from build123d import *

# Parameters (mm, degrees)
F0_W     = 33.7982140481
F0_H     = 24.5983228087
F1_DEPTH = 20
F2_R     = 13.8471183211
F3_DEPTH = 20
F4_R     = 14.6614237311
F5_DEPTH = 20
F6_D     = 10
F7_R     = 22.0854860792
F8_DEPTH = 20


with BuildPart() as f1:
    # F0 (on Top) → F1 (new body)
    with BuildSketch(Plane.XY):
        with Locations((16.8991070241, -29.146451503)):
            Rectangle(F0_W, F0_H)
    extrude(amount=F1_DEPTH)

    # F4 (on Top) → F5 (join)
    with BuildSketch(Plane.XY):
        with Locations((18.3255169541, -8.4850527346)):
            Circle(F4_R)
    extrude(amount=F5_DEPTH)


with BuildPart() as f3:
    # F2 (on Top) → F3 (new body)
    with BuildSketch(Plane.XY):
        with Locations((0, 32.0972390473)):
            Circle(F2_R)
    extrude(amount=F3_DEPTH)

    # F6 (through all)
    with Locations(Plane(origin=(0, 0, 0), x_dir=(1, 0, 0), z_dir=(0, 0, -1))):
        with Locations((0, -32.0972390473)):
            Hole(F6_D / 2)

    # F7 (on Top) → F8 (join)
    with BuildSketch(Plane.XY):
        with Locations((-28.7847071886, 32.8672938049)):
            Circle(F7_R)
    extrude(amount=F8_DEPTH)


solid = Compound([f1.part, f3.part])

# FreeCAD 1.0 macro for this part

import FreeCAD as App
import Part
import Sketcher

doc = App.newDocument("Part")
body = doc.addObject("PartDesign::Body", "Body")

# Sketch on XY plane
sketch1 = body.newObject("Sketcher::SketchObject", "Sketch")
sketch1.AttachmentSupport = (doc.getObject("XY_Plane"), [""])
sketch1.MapMode = "FlatFace"
sketch1.addGeometry([
    Part.LineSegment(App.Vector(0, -17, 0), App.Vector(0, -41, 0)),
    Part.LineSegment(App.Vector(0, -41, 0), App.Vector(34, -41, 0)),
    Part.LineSegment(App.Vector(34, -41, 0), App.Vector(34, -17, 0)),
    Part.LineSegment(App.Vector(34, -17, 0), App.Vector(0, -17, 0)),
], False)
sketch1.addConstraint([
    Sketcher.Constraint("Coincident", 0, 2, 1, 1),
    Sketcher.Constraint("Coincident", 1, 2, 2, 1),
    Sketcher.Constraint("Coincident", 2, 2, 3, 1),
    Sketcher.Constraint("Coincident", 3, 2, 0, 1),
    Sketcher.Constraint("Vertical", 0),
    Sketcher.Constraint("Horizontal", 1),
    Sketcher.Constraint("Vertical", 2),
    Sketcher.Constraint("Horizontal", 3),
    Sketcher.Constraint("PointOnObject", 0, 2, -2),
    Sketcher.Constraint("DistanceX", 1, 1, 1, 2, 33.798214),
    Sketcher.Constraint("DistanceY", 0, 2, 0, 1, 24.598323),
    Sketcher.Constraint("DistanceY", 2, 2, -1, 1, 16.84729),
])
pad1 = body.newObject("PartDesign::Pad", "Pad")
pad1.Profile = sketch1
pad1.Length = 20

# Sketch on XY plane
sketch2 = body.newObject("Sketcher::SketchObject", "Sketch001")
sketch2.AttachmentSupport = (doc.getObject("XY_Plane"), [""])
sketch2.MapMode = "FlatFace"
sketch2.addGeometry(Part.Circle(App.Vector(18, -8, 0), App.Vector(0, 0, 1), 15), False)
sketch2.addConstraint([
    Sketcher.Constraint("Diameter", 0, 29.322847),
    Sketcher.Constraint("DistanceX", -1, 1, 0, 3, 18.325517),
    Sketcher.Constraint("DistanceY", 0, 3, -1, 1, 8.485053),
])
pad2 = body.newObject("PartDesign::Pad", "Pad001")
pad2.Profile = sketch2
pad2.Length = 20
body2 = doc.addObject("PartDesign::Body", "Body001")

# Sketch on XY plane
sketch3 = body2.newObject("Sketcher::SketchObject", "Sketch002")
sketch3.AttachmentSupport = (doc.getObject("XY_Plane001"), [""])
sketch3.MapMode = "FlatFace"
sketch3.addGeometry(Part.Circle(App.Vector(0, 32, 0), App.Vector(0, 0, 1), 14), False)
sketch3.addConstraint([
    Sketcher.Constraint("PointOnObject", 0, 3, -2),
    Sketcher.Constraint("Diameter", 0, 27.694237),
    Sketcher.Constraint("DistanceY", -1, 1, 0, 3, 32.097239),
])
pad3 = body2.newObject("PartDesign::Pad", "Pad002")
pad3.Profile = sketch3
pad3.Length = 20

# Sketch on XY plane
sketch4 = body2.newObject("Sketcher::SketchObject", "Sketch003")
sketch4.AttachmentSupport = (doc.getObject("XY_Plane001"), [""])
sketch4.MapMode = "FlatFace"
sketch4.addGeometry(Part.Circle(App.Vector(0, 32, 0), App.Vector(0, 0, 1), 5), False)
sketch4.addConstraint([
    Sketcher.Constraint("PointOnObject", 0, 3, -2),
    Sketcher.Constraint("Diameter", 0, 10.0),
    Sketcher.Constraint("DistanceY", -1, 1, 0, 3, 32.097239),
])
doc.recompute()
hole = body2.newObject("PartDesign::Hole", "Hole")
hole.Profile = sketch4
hole.ThreadType = "None"
hole.Diameter = 10
hole.DepthType = "ThroughAll"
hole.Reversed = True

# Sketch on XY plane
sketch5 = body2.newObject("Sketcher::SketchObject", "Sketch004")
sketch5.AttachmentSupport = (doc.getObject("XY_Plane001"), [""])
sketch5.MapMode = "FlatFace"
sketch5.addGeometry(Part.Circle(App.Vector(-29, 33, 0), App.Vector(0, 0, 1), 22), False)
sketch5.addConstraint([
    Sketcher.Constraint("Diameter", 0, 44.170972),
    Sketcher.Constraint("DistanceX", 0, 3, -1, 1, 28.784707),
    Sketcher.Constraint("DistanceY", -1, 1, 0, 3, 32.867294),
])
pad4 = body2.newObject("PartDesign::Pad", "Pad003")
pad4.Profile = sketch5
pad4.Length = 20

doc.recompute()
